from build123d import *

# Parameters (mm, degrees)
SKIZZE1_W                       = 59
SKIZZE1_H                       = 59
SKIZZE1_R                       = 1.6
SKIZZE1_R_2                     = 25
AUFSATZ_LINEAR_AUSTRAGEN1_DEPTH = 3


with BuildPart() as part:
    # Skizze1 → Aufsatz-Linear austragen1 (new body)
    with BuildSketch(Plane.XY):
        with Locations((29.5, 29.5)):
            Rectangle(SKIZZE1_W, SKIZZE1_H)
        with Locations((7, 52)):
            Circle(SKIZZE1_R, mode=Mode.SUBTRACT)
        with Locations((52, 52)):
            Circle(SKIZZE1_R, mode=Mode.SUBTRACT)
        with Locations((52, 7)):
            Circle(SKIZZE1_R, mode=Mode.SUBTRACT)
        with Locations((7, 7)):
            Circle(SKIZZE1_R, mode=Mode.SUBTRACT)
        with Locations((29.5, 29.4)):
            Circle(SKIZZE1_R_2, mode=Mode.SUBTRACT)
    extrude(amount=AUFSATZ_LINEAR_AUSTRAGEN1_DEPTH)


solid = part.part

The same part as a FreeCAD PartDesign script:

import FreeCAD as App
import Part
import Sketcher

doc = App.newDocument("Part")
body = doc.addObject("PartDesign::Body", "Body")

sketch1 = body.newObject("Sketcher::SketchObject", "Sketch")
sketch1.AttachmentSupport = (doc.getObject("XY_Plane"), [""])
sketch1.MapMode = "FlatFace"
sketch1.addGeometry(Part.LineSegment(App.Vector(0, 59, 0), App.Vector(0, 0, 0)), False)
sketch1.addGeometry(Part.LineSegment(App.Vector(0, 0, 0), App.Vector(59, 0, 0)), False)
sketch1.addGeometry(Part.LineSegment(App.Vector(59, 0, 0), App.Vector(59, 59, 0)), False)
sketch1.addGeometry(Part.LineSegment(App.Vector(59, 59, 0), App.Vector(0, 59, 0)), False)
sketch1.addGeometry(Part.Circle(App.Vector(7, 7, 0), App.Vector(0, 0, 1), 1.6), False)
sketch1.addGeometry(Part.Circle(App.Vector(52, 7, 0), App.Vector(0, 0, 1), 1.6), False)
sketch1.addGeometry(Part.Circle(App.Vector(7, 52, 0), App.Vector(0, 0, 1), 1.6), False)
sketch1.addGeometry(Part.Circle(App.Vector(29.5, 29.4, 0), App.Vector(0, 0, 1), 25), False)
sketch1.addGeometry(Part.Circle(App.Vector(52, 52, 0), App.Vector(0, 0, 1), 1.6), False)
sketch1.addConstraint(Sketcher.Constraint("Coincident", 0, 2, 1, 1))
sketch1.addConstraint(Sketcher.Constraint("Coincident", 1, 2, 2, 1))
sketch1.addConstraint(Sketcher.Constraint("Coincident", 2, 2, 3, 1))
sketch1.addConstraint(Sketcher.Constraint("Coincident", 3, 2, 0, 1))
sketch1.addConstraint(Sketcher.Constraint("Vertical", 0))
sketch1.addConstraint(Sketcher.Constraint("Horizontal", 1))
sketch1.addConstraint(Sketcher.Constraint("Vertical", 2))
sketch1.addConstraint(Sketcher.Constraint("Horizontal", 3))
sketch1.addConstraint(Sketcher.Constraint("Coincident", 0, 2, -1, 1))
sketch1.addConstraint(Sketcher.Constraint("Equal", 4, 5))
sketch1.addConstraint(Sketcher.Constraint("Equal", 5, 6))
sketch1.addConstraint(Sketcher.Constraint("Equal", 6, 8))
sketch1.addConstraint(Sketcher.Constraint("Horizontal", 4, 3, 5, 3))
sketch1.addConstraint(Sketcher.Constraint("Horizontal", 6, 3, 8, 3))
sketch1.addConstraint(Sketcher.Constraint("Vertical", 4, 3, 6, 3))
sketch1.addConstraint(Sketcher.Constraint("Vertical", 5, 3, 8, 3))
sketch1.addConstraint(Sketcher.Constraint("Equal", 3, 0))
sketch1.addConstraint(Sketcher.Constraint("Diameter", 7, 50.0))
sketch1.addConstraint(Sketcher.Constraint("Diameter", 4, 3.2))
sketch1.addConstraint(Sketcher.Constraint("DistanceX", 1, 1, 1, 2, 59.0))
sketch1.addConstraint(Sketcher.Constraint("DistanceX", -1, 1, 4, 3, 7.0))
sketch1.addConstraint(Sketcher.Constraint("DistanceY", -1, 1, 4, 3, 7.0))
sketch1.addConstraint(Sketcher.Constraint("DistanceX", -1, 1, 5, 3, 52.0))
sketch1.addConstraint(Sketcher.Constraint("DistanceY", -1, 1, 6, 3, 52.0))
sketch1.addConstraint(Sketcher.Constraint("DistanceX", -1, 1, 7, 3, 29.5))
sketch1.addConstraint(Sketcher.Constraint("DistanceY", -1, 1, 7, 3, 29.4))
pad1 = body.newObject("PartDesign::Pad", "Pad")
pad1.Profile = sketch1
pad1.Length = 3

doc.recompute()
